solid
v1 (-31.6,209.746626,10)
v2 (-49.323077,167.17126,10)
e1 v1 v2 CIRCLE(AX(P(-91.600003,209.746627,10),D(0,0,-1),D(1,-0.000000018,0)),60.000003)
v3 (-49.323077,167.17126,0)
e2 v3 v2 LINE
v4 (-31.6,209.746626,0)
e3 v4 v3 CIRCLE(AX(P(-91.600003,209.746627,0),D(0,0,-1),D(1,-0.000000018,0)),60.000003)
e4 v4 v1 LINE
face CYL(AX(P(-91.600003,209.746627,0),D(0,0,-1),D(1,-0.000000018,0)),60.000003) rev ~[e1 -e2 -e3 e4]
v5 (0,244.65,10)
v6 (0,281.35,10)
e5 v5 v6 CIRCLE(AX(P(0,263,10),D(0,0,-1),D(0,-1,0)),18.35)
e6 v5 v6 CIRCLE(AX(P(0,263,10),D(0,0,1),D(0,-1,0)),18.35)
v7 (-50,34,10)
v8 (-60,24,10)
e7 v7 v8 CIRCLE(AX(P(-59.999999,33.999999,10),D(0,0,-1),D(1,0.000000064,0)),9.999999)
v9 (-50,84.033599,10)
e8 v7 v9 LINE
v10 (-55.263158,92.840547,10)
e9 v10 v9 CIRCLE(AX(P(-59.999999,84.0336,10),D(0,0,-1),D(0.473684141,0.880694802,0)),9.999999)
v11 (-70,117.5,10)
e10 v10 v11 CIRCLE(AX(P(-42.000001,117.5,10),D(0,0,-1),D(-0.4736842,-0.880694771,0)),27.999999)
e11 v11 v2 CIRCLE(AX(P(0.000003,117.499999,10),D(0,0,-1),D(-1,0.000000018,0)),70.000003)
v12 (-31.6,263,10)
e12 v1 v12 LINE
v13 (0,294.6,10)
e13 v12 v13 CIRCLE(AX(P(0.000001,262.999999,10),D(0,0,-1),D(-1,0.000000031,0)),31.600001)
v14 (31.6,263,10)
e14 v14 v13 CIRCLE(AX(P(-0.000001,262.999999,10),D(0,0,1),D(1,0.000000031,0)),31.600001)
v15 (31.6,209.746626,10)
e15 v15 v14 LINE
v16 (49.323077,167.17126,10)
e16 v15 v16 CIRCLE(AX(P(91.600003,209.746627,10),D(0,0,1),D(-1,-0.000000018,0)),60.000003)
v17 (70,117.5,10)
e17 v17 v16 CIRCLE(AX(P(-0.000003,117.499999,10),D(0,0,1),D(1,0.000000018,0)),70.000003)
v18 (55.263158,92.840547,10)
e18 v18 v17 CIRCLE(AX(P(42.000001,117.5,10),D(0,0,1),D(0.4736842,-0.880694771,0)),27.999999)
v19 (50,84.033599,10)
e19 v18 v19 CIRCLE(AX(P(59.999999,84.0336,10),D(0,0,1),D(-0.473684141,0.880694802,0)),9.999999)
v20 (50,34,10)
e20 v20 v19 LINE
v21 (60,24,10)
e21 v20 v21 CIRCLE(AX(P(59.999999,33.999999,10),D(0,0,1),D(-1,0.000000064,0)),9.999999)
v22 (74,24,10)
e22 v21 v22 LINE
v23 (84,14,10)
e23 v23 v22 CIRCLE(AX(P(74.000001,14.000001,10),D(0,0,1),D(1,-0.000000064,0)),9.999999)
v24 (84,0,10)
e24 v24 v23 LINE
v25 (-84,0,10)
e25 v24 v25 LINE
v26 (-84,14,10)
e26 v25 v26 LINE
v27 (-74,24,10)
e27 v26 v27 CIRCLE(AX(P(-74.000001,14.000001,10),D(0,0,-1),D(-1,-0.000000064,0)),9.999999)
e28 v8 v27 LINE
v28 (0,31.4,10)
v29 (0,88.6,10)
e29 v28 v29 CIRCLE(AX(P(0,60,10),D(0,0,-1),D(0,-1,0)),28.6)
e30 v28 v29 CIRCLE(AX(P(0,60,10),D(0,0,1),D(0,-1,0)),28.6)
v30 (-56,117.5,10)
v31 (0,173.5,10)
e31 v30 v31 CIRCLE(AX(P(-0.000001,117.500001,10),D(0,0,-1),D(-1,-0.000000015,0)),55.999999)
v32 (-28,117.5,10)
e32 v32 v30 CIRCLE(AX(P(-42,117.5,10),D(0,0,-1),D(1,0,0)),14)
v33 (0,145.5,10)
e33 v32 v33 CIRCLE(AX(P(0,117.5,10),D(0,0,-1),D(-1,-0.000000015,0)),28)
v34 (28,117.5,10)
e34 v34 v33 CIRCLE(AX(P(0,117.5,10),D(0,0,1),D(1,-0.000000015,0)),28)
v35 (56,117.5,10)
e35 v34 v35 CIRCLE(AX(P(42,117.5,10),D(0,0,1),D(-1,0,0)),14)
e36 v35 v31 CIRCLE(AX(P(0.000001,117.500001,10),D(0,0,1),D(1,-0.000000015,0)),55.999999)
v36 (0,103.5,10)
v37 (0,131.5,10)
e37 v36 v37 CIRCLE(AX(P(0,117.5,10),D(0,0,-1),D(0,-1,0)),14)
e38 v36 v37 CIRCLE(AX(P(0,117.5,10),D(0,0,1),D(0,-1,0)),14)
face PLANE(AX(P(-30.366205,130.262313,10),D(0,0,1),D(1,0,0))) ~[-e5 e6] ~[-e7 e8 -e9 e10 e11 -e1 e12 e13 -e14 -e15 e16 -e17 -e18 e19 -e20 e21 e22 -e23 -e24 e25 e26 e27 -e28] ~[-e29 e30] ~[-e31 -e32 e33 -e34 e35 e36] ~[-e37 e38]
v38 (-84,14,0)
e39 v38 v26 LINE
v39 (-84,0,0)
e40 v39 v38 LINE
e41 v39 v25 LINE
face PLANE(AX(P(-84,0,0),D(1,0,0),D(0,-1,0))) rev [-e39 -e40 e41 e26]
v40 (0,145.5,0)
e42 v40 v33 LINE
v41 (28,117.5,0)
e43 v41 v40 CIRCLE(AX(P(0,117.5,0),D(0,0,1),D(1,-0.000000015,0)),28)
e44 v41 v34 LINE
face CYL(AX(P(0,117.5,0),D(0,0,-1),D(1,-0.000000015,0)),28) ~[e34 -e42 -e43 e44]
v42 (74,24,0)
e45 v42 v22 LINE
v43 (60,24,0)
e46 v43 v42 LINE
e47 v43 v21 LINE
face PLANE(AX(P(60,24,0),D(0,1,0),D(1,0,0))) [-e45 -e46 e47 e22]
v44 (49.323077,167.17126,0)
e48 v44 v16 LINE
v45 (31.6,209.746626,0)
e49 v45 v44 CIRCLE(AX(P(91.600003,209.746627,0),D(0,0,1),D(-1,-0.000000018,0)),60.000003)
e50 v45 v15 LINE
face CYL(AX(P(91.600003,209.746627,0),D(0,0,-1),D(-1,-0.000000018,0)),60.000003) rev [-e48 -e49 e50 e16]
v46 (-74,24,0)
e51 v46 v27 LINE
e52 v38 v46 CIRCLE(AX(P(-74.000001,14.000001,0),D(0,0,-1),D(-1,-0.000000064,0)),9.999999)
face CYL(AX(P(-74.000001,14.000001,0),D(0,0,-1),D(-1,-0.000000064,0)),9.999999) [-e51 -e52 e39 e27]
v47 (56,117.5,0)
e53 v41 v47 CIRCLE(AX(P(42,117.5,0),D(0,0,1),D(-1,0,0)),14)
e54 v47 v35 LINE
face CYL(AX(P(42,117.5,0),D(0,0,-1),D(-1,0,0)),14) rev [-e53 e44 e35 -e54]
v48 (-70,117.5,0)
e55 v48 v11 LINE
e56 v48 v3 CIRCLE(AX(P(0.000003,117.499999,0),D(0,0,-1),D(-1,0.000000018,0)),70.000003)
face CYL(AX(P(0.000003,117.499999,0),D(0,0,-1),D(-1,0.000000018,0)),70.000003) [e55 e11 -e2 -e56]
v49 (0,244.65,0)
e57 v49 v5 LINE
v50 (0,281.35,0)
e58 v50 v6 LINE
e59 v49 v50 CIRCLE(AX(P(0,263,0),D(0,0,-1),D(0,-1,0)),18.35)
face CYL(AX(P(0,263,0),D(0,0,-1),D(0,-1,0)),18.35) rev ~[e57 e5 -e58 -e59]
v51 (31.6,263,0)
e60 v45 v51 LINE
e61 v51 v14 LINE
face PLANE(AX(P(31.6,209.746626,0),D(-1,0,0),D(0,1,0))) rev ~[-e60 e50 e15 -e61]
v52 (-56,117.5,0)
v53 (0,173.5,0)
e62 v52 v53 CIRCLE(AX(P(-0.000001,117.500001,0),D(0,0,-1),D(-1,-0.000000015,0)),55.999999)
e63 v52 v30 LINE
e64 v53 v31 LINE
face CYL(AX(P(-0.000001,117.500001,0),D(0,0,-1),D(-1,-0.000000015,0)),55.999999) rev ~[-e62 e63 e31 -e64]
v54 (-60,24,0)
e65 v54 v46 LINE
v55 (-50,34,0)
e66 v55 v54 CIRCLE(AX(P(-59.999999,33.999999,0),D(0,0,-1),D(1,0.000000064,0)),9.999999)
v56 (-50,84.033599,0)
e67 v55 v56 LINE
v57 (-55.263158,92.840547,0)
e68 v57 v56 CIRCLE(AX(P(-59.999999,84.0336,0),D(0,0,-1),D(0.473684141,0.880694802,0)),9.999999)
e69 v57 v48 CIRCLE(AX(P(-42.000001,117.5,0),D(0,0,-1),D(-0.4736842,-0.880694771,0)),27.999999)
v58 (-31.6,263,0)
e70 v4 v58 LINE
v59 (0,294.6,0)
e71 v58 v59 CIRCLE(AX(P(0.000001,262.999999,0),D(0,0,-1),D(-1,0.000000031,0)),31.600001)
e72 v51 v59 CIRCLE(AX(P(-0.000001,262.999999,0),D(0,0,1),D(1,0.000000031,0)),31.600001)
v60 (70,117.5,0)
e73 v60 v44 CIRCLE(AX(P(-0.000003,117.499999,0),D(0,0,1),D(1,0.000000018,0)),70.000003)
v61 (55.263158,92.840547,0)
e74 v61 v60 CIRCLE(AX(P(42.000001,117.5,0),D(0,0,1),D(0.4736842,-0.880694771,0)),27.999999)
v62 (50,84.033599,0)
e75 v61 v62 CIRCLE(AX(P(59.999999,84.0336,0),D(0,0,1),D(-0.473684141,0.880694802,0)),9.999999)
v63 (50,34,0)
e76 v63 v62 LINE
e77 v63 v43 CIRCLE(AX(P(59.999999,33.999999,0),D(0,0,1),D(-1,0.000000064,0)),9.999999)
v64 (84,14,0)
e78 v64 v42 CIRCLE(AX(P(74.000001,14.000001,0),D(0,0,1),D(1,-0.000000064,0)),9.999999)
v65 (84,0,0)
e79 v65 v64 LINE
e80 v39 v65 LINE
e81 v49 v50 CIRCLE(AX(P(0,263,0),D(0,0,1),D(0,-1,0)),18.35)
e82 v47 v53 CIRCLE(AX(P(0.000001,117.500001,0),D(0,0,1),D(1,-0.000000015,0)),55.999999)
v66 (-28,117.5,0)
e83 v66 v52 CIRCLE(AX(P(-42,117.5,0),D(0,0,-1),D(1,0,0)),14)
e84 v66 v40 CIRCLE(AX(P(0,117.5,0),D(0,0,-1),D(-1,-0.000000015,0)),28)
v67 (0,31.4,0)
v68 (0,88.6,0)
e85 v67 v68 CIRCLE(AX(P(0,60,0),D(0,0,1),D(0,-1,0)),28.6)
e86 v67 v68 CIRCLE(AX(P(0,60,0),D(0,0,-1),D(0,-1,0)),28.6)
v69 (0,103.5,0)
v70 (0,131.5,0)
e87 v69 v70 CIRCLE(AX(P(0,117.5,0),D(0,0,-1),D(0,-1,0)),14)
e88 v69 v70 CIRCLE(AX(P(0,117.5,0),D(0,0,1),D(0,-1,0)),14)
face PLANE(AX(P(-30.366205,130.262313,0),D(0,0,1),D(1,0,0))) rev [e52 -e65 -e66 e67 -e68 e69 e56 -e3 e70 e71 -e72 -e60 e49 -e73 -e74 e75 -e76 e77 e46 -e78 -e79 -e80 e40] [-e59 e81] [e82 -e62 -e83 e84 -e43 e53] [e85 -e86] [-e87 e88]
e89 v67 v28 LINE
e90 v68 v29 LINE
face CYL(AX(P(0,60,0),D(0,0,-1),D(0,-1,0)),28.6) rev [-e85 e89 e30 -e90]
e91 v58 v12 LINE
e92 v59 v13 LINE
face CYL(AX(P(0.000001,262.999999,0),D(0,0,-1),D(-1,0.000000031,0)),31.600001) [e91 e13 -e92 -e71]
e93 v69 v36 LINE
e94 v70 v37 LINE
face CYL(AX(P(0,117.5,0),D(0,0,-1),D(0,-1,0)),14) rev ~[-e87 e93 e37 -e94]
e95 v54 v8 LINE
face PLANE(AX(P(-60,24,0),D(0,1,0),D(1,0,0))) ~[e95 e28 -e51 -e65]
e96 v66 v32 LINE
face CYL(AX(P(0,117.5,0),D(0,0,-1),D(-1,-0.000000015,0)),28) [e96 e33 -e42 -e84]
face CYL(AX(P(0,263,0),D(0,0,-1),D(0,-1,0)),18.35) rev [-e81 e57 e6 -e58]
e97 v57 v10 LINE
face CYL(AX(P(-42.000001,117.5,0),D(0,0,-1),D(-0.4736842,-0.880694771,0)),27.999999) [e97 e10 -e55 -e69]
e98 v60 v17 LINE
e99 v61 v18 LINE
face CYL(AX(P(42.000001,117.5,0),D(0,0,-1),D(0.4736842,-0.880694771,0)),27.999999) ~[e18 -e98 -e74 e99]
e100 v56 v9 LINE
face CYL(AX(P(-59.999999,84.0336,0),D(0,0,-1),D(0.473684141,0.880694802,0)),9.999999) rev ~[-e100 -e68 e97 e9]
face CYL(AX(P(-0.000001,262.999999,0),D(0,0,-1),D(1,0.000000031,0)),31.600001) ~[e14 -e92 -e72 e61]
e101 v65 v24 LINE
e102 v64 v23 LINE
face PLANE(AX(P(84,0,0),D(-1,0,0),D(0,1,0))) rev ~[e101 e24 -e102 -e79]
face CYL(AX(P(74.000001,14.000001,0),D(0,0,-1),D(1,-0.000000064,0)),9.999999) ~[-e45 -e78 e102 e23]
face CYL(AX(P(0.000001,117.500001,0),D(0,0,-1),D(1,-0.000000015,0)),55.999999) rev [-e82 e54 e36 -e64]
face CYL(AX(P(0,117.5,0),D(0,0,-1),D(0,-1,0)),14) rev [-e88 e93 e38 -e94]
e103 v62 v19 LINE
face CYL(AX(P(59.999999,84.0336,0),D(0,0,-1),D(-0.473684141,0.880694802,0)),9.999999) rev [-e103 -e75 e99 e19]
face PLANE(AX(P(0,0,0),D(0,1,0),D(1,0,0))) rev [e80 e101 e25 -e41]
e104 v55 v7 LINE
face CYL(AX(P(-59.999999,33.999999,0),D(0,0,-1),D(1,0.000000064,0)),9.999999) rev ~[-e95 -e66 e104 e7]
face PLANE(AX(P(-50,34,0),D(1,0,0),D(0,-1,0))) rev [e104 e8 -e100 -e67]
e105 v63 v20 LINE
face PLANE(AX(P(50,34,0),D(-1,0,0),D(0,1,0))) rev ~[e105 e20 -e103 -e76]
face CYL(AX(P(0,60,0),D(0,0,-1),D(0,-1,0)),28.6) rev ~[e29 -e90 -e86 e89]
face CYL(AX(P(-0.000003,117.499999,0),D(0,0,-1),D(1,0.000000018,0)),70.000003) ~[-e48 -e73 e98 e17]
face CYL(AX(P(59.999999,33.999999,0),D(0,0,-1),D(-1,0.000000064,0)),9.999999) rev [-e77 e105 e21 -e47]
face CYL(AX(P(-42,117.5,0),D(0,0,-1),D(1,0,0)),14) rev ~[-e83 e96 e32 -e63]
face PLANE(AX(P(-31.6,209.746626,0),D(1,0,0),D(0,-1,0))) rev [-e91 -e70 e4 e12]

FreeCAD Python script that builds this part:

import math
import FreeCAD as App
import Part
import Sketcher

doc = App.newDocument("Part")
body = doc.addObject("PartDesign::Body", "Body")

# Sketch on XY plane
sketch1 = doc.addObject("Sketcher::SketchObject", "Sketch")
body.addObject(sketch1)
sketch1.AttachmentSupport = (doc.XY_Plane, [""])
sketch1.MapMode = "FlatFace"
sketch1.addGeometry(Part.LineSegment(App.Vector(0, 0, 0), App.Vector(84, 0, 0)), False)
sketch1.addGeometry(Part.LineSegment(App.Vector(84, 0, 0), App.Vector(84, 14, 0)), False)
sketch1.addGeometry(Part.ArcOfCircle(Part.Circle(App.Vector(74.000001, 14.000001, 0), App.Vector(0, 0, 1), 9.999999), math.radians(-0.000004), math.radians(90.000004)), False)
sketch1.addGeometry(Part.LineSegment(App.Vector(74, 24, 0), App.Vector(60, 24, 0)), False)
sketch1.addGeometry(Part.ArcOfCircle(Part.Circle(App.Vector(59.999999, 33.999999, 0), App.Vector(0, 0, 1), 9.999999), math.radians(179.999996), math.radians(270.000004)), False)
sketch1.addGeometry(Part.LineSegment(App.Vector(50, 34, 0), App.Vector(50, 84.033599, 0)), False)
sketch1.addGeometry(Part.ArcOfCircle(Part.Circle(App.Vector(59.999999, 84.0336, 0), App.Vector(0, 0, 1), 9.999999), math.radians(118.273709), math.radians(180.000006)), False)
sketch1.addGeometry(Part.ArcOfCircle(Part.Circle(App.Vector(42.000001, 117.5, 0), App.Vector(0, 0, 1), 27.999999), math.radians(-61.726287), math.radians(0)), False)
sketch1.addGeometry(Part.ArcOfCircle(Part.Circle(App.Vector(-0.000003, 117.499999, 0), App.Vector(0, 0, 1), 70.000003), math.radians(0.000001), math.radians(45.201519)), False)
sketch1.addGeometry(Part.ArcOfCircle(Part.Circle(App.Vector(91.600003, 209.746627, 0), App.Vector(0, 0, 1), 60.000003), math.radians(-179.999999), math.radians(-134.798481)), False)
sketch1.addGeometry(Part.LineSegment(App.Vector(31.6, 209.746626, 0), App.Vector(31.6, 263, 0)), False)
sketch1.addGeometry(Part.ArcOfCircle(Part.Circle(App.Vector(-0.000001, 262.999999, 0), App.Vector(0, 0, 1), 31.600001), math.radians(0.000002), math.radians(89.999998)), False)
sketch1.addGeometry(Part.LineSegment(App.Vector(0, 294.6, 0), App.Vector(0, 281.35, 0)), False)
sketch1.addGeometry(Part.ArcOfCircle(Part.Circle(App.Vector(0, 263, 0), App.Vector(0, 0, 1), 18.35), math.radians(-90), math.radians(90)), False)
sketch1.addGeometry(Part.LineSegment(App.Vector(0, 244.65, 0), App.Vector(0, 173.5, 0)), False)
sketch1.addGeometry(Part.ArcOfCircle(Part.Circle(App.Vector(0.000001, 117.500001, 0), App.Vector(0, 0, 1), 55.999999), math.radians(-0.000001), math.radians(90.000001)), False)
sketch1.addGeometry(Part.ArcOfCircle(Part.Circle(App.Vector(42, 117.5, 0), App.Vector(0, 0, 1), 14), math.radians(180), math.radians(360)), False)
sketch1.addGeometry(Part.ArcOfCircle(Part.Circle(App.Vector(0, 117.5, 0), App.Vector(0, 0, 1), 28), math.radians(-0.000001), math.radians(90.000001)), False)
sketch1.addGeometry(Part.LineSegment(App.Vector(0, 145.5, 0), App.Vector(0, 131.5, 0)), False)
sketch1.addGeometry(Part.ArcOfCircle(Part.Circle(App.Vector(0, 117.5, 0), App.Vector(0, 0, 1), 14), math.radians(-90), math.radians(90)), False)
sketch1.addGeometry(Part.LineSegment(App.Vector(0, 103.5, 0), App.Vector(0, 88.6, 0)), False)
sketch1.addGeometry(Part.ArcOfCircle(Part.Circle(App.Vector(0, 60, 0), App.Vector(0, 0, 1), 28.6), math.radians(-90), math.radians(90)), False)
sketch1.addGeometry(Part.LineSegment(App.Vector(0, 31.4, 0), App.Vector(0, 0, 0)), False)
sketch1.addConstraint(Sketcher.Constraint("Coincident", 0, 2, 1, 1))
sketch1.addConstraint(Sketcher.Constraint("Tangent", 1, 2, 2, 1))
sketch1.addConstraint(Sketcher.Constraint("Tangent", 2, 2, 3, 1))
sketch1.addConstraint(Sketcher.Constraint("Tangent", 3, 2, 4, 2))
sketch1.addConstraint(Sketcher.Constraint("Tangent", 4, 1, 5, 1))
sketch1.addConstraint(Sketcher.Constraint("Tangent", 5, 2, 6, 2))
sketch1.addConstraint(Sketcher.Constraint("Tangent", 6, 1, 7, 1))
sketch1.addConstraint(Sketcher.Constraint("Tangent", 7, 2, 8, 1))
sketch1.addConstraint(Sketcher.Constraint("Tangent", 8, 2, 9, 2))
sketch1.addConstraint(Sketcher.Constraint("Tangent", 9, 1, 10, 1))
sketch1.addConstraint(Sketcher.Constraint("Tangent", 10, 2, 11, 1))
sketch1.addConstraint(Sketcher.Constraint("Coincident", 11, 2, 12, 1))
sketch1.addConstraint(Sketcher.Constraint("Coincident", 12, 2, 13, 2))
sketch1.addConstraint(Sketcher.Constraint("Coincident", 13, 1, 14, 1))
sketch1.addConstraint(Sketcher.Constraint("Coincident", 14, 2, 15, 2))
sketch1.addConstraint(Sketcher.Constraint("Tangent", 15, 1, 16, 2))
sketch1.addConstraint(Sketcher.Constraint("Tangent", 16, 1, 17, 1))
sketch1.addConstraint(Sketcher.Constraint("Coincident", 17, 2, 18, 1))
sketch1.addConstraint(Sketcher.Constraint("Coincident", 18, 2, 19, 2))
sketch1.addConstraint(Sketcher.Constraint("Coincident", 19, 1, 20, 1))
sketch1.addConstraint(Sketcher.Constraint("Coincident", 20, 2, 21, 2))
sketch1.addConstraint(Sketcher.Constraint("Coincident", 21, 1, 22, 1))
sketch1.addConstraint(Sketcher.Constraint("Coincident", 22, 2, 0, 1))
sketch1.addConstraint(Sketcher.Constraint("Horizontal", 0))
sketch1.addConstraint(Sketcher.Constraint("Vertical", 1))
sketch1.addConstraint(Sketcher.Constraint("Horizontal", 3))
sketch1.addConstraint(Sketcher.Constraint("Vertical", 5))
sketch1.addConstraint(Sketcher.Constraint("Vertical", 10))
sketch1.addConstraint(Sketcher.Constraint("Vertical", 12))
sketch1.addConstraint(Sketcher.Constraint("Vertical", 14))
sketch1.addConstraint(Sketcher.Constraint("Vertical", 18))
sketch1.addConstraint(Sketcher.Constraint("Vertical", 20))
sketch1.addConstraint(Sketcher.Constraint("Vertical", 22))
sketch1.addConstraint(Sketcher.Constraint("Coincident", 22, 2, -1, 1))
sketch1.addConstraint(Sketcher.Constraint("Coincident", 13, 3, 11, 3))
sketch1.addConstraint(Sketcher.Constraint("Coincident", 15, 3, 8, 3))
sketch1.addConstraint(Sketcher.Constraint("Coincident", 16, 3, 7, 3))
sketch1.addConstraint(Sketcher.Constraint("Coincident", 17, 3, 8, 3))
sketch1.addConstraint(Sketcher.Constraint("Coincident", 19, 3, 8, 3))
sketch1.addConstraint(Sketcher.Constraint("Equal", 2, 4))
sketch1.addConstraint(Sketcher.Constraint("Equal", 4, 6))
sketch1.addConstraint(Sketcher.Constraint("Equal", 7, 17))
sketch1.addConstraint(Sketcher.Constraint("Equal", 16, 19))
sketch1.addConstraint(Sketcher.Constraint("PointOnObject", 11, 3, -2))
sketch1.addConstraint(Sketcher.Constraint("PointOnObject", 15, 3, -2))
sketch1.addConstraint(Sketcher.Constraint("PointOnObject", 21, 3, -2))
sketch1.addConstraint(Sketcher.Constraint("PointOnObject", 11, 2, -2))
sketch1.addConstraint(Sketcher.Constraint("PointOnObject", 13, 1, -2))
sketch1.addConstraint(Sketcher.Constraint("PointOnObject", 17, 2, -2))
sketch1.addConstraint(Sketcher.Constraint("PointOnObject", 19, 1, -2))
sketch1.addConstraint(Sketcher.Constraint("Horizontal", 7, 3, 8, 3))
sketch1.addConstraint(Sketcher.Constraint("Equal", 3, 1))
sketch1.addConstraint(Sketcher.Constraint("Equal", 1, 18))
sketch1.addConstraint(Sketcher.Constraint("Radius", 2, 9.999999))
sketch1.addConstraint(Sketcher.Constraint("Radius", 7, 27.999999))
sketch1.addConstraint(Sketcher.Constraint("Radius", 15, 55.999999))
sketch1.addConstraint(Sketcher.Constraint("Radius", 11, 31.600001))
sketch1.addConstraint(Sketcher.Constraint("Radius", 21, 28.6))
sketch1.addConstraint(Sketcher.Constraint("DistanceX", 0, 1, 0, 2, 84.0))
sketch1.addConstraint(Sketcher.Constraint("Radius", 13, 18.35))
sketch1.addConstraint(Sketcher.Constraint("DistanceY", 20, 2, 20, 1, 14.9))
sketch1.addConstraint(Sketcher.Constraint("DistanceY", 22, 2, 22, 1, 31.4))
sketch1.addConstraint(Sketcher.Constraint("DistanceY", -1, 1, 11, 3, 262.999999))
sketch1.addConstraint(Sketcher.Constraint("Radius", 9, 60.000003))
pad1 = doc.addObject("PartDesign::Pad", "Pad")
body.addObject(pad1)
pad1.Profile = sketch1
pad1.Length = 10
doc.recompute()

mirrored = doc.addObject("PartDesign::Mirrored", "Mirrored")
body.addObject(mirrored)
mirrored.Originals = [pad1]
mirrored.MirrorPlane = (doc.YZ_Plane, [""])
body.Tip = mirrored

doc.recompute()
